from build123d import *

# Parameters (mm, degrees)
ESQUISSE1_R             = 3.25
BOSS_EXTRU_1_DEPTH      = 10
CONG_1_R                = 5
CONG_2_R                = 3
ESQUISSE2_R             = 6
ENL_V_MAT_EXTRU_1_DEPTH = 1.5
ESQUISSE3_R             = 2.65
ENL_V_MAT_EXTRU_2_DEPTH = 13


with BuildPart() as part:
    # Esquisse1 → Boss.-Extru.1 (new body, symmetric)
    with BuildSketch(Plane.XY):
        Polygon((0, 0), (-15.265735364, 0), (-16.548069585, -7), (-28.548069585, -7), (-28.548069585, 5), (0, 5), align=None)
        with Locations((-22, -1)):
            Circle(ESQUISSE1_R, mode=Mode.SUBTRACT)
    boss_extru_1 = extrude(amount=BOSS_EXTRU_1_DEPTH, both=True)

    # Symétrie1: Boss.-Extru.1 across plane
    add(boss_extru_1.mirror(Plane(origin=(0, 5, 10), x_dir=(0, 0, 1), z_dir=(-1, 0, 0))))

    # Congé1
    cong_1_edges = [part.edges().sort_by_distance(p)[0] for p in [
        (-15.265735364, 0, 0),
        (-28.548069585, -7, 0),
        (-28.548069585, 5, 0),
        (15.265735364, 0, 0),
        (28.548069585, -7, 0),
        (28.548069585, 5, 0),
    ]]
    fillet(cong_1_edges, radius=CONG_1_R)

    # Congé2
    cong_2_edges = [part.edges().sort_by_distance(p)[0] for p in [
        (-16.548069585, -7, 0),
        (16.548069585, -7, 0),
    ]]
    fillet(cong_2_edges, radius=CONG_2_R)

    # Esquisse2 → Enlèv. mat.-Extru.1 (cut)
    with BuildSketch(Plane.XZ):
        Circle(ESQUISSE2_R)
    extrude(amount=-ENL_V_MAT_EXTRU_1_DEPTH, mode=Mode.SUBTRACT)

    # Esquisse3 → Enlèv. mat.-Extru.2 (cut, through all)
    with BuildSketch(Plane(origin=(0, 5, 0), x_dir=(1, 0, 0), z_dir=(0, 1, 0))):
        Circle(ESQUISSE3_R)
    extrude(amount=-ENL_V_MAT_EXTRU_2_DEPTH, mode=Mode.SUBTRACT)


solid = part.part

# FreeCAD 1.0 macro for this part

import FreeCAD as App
import Part
import Sketcher
from FreeCAD import Vector
Q = App.Units.Quantity


def edges_at(feature, points):
    """Names of the edges that pass closest to the given points."""
    edges = feature.Shape.Edges
    near = lambda p: min(range(len(edges)), key=lambda i: edges[i].distToShape(Part.Vertex(*p))[0])
    return sorted({f"Edge{near(p) + 1}" for p in points})

doc = App.newDocument("Part")
body = doc.addObject("PartDesign::Body", "Body")

# Sketch on XY plane
sketch1 = body.newObject("Sketcher::SketchObject", "Sketch")
sketch1.AttachmentSupport = (doc.getObject("XY_Plane"), [""])
sketch1.MapMode = "FlatFace"
sketch1.addGeometry(Part.LineSegment(Vector(-15.3, 0, 0), Vector(0, 0, 0)), False)
sketch1.addGeometry(Part.LineSegment(Vector(0, 0, 0), Vector(0, 5, 0)), False)
sketch1.addGeometry(Part.LineSegment(Vector(0, 5, 0), Vector(-28.5, 5, 0)), False)
sketch1.addGeometry(Part.LineSegment(Vector(-28.5, 5, 0), Vector(-28.5, -7, 0)), False)
sketch1.addGeometry(Part.LineSegment(Vector(-28.5, -7, 0), Vector(-16.5, -7, 0)), False)
sketch1.addGeometry(Part.LineSegment(Vector(-16.5, -7, 0), Vector(-15.3, 0, 0)), False)
sketch1.addGeometry(Part.Circle(Vector(-22, -1, 0), Vector(0, 0, 1), 3.2), False)
sketch1.addConstraint(Sketcher.Constraint("Coincident", 0, 2, 1, 1))
sketch1.addConstraint(Sketcher.Constraint("Coincident", 1, 2, 2, 1))
sketch1.addConstraint(Sketcher.Constraint("Coincident", 2, 2, 3, 1))
sketch1.addConstraint(Sketcher.Constraint("Coincident", 3, 2, 4, 1))
sketch1.addConstraint(Sketcher.Constraint("Coincident", 4, 2, 5, 1))
sketch1.addConstraint(Sketcher.Constraint("Coincident", 5, 2, 0, 1))
sketch1.addConstraint(Sketcher.Constraint("Horizontal", 0))
sketch1.addConstraint(Sketcher.Constraint("Vertical", 1))
sketch1.addConstraint(Sketcher.Constraint("Horizontal", 2))
sketch1.addConstraint(Sketcher.Constraint("Vertical", 3))
sketch1.addConstraint(Sketcher.Constraint("Horizontal", 4))
sketch1.addConstraint(Sketcher.Constraint("Coincident", 0, 2, -1, 1))
sketch1.addConstraint(Sketcher.Constraint("Equal", 4, 3))
sketch1.addConstraint(Sketcher.Constraint("Diameter", 6, Q("6.5 mm")))
sketch1.addConstraint(Sketcher.Constraint("DistanceX", 4, 1, 4, 2, Q("12 mm")))
sketch1.addConstraint(Sketcher.Constraint("DistanceY", 1, 1, 1, 2, Q("5 mm")))
sketch1.addConstraint(Sketcher.Constraint("DistanceX", 6, 3, -1, 1, Q("22 mm")))
sketch1.addConstraint(Sketcher.Constraint("DistanceY", 6, 3, -1, 1, Q("1 mm")))
sketch1.addConstraint(Sketcher.Constraint("DistanceX", 2, 2, 2, 1, Q("28.54807 mm")))
sketch1.addConstraint(Sketcher.Constraint("DistanceX", 0, 1, 0, 2, Q("15.265735 mm")))
pad1 = body.newObject("PartDesign::Pad", "Pad")
pad1.Profile = sketch1
pad1.Length = 20
pad1.Midplane = True
doc.recompute()

mirrored = body.newObject("PartDesign::Mirrored", "Mirrored")
mirrored.Originals = [pad1]
mirrored.MirrorPlane = (doc.getObject("YZ_Plane"), [""])
body.Tip = mirrored
doc.recompute()

fillet = body.newObject("PartDesign::Fillet", "Fillet")
fillet.Base = (mirrored, edges_at(mirrored, [
    (-15.266, 0, 0),
    (-28.548, -7, 0),
    (-28.548, 5, 0),
    (15.266, 0, 0),
    (28.548, -7, 0),
    (28.548, 5, 0),
]))
fillet.Radius = 5
doc.recompute()

fillet2 = body.newObject("PartDesign::Fillet", "Fillet001")
fillet2.Base = (fillet, edges_at(fillet, [(-16.548, -7, 0), (16.548, -7, 0)]))
fillet2.Radius = 3

# Sketch on XZ plane
sketch2 = body.newObject("Sketcher::SketchObject", "Sketch001")
sketch2.AttachmentSupport = (doc.getObject("XZ_Plane"), [""])
sketch2.MapMode = "FlatFace"
sketch2.addGeometry(Part.Circle(Vector(0, 0, 0), Vector(0, 0, 1), 6), False)
sketch2.addConstraint(Sketcher.Constraint("Coincident", 0, 3, -1, 1))
sketch2.addConstraint(Sketcher.Constraint("Diameter", 0, Q("12 mm")))
pocket1 = body.newObject("PartDesign::Pocket", "Pocket")
pocket1.Profile = sketch2
pocket1.Length = 1.5

# Sketch on XZ plane
sketch3 = body.newObject("Sketcher::SketchObject", "Sketch002")
sketch3.AttachmentSupport = (doc.getObject("XZ_Plane"), [""])
sketch3.MapMode = "FlatFace"
sketch3.AttachmentOffset = App.Placement(Vector(0, 0, -5), App.Rotation())
sketch3.addGeometry(Part.Circle(Vector(0, 0, 0), Vector(0, 0, 1), 2.6), False)
sketch3.addConstraint(Sketcher.Constraint("Coincident", 0, 3, -1, 1))
sketch3.addConstraint(Sketcher.Constraint("Diameter", 0, Q("5.3 mm")))
pocket2 = body.newObject("PartDesign::Pocket", "Pocket001")
pocket2.Profile = sketch3
pocket2.Type = "ThroughAll"
pocket2.Reversed = True

doc.recompute()
